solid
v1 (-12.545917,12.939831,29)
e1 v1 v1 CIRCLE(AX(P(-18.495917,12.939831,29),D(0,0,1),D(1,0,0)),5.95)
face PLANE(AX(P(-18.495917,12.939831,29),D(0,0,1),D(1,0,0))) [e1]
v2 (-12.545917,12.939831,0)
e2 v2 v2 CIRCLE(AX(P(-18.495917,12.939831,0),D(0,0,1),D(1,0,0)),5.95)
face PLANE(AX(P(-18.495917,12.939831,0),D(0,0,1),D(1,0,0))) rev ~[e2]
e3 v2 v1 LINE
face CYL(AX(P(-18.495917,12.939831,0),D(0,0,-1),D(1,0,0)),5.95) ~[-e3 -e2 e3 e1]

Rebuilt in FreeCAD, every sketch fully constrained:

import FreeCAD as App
import Part
import Sketcher
from FreeCAD import Vector

doc = App.newDocument("Part")
body = doc.addObject("PartDesign::Body", "Body")

# Sketch on XY plane
sketch1 = body.newObject("Sketcher::SketchObject", "Sketch")
sketch1.AttachmentSupport = (doc.getObject("XY_Plane"), [""])
sketch1.MapMode = "FlatFace"
sketch1.addGeometry(Part.Circle(Vector(-18, 13, 0), Vector(0, 0, 1), 6), False)
sketch1.addConstraint(Sketcher.Constraint("Diameter", 0, 11.9))
sketch1.addConstraint(Sketcher.Constraint("DistanceY", -1, 1, 0, 3, 12.939831))
sketch1.addConstraint(Sketcher.Constraint("DistanceX", 0, 3, -1, 1, 18.495917))
pad1 = body.newObject("PartDesign::Pad", "Pad")
pad1.Profile = sketch1
pad1.Length = 29

doc.recompute()
